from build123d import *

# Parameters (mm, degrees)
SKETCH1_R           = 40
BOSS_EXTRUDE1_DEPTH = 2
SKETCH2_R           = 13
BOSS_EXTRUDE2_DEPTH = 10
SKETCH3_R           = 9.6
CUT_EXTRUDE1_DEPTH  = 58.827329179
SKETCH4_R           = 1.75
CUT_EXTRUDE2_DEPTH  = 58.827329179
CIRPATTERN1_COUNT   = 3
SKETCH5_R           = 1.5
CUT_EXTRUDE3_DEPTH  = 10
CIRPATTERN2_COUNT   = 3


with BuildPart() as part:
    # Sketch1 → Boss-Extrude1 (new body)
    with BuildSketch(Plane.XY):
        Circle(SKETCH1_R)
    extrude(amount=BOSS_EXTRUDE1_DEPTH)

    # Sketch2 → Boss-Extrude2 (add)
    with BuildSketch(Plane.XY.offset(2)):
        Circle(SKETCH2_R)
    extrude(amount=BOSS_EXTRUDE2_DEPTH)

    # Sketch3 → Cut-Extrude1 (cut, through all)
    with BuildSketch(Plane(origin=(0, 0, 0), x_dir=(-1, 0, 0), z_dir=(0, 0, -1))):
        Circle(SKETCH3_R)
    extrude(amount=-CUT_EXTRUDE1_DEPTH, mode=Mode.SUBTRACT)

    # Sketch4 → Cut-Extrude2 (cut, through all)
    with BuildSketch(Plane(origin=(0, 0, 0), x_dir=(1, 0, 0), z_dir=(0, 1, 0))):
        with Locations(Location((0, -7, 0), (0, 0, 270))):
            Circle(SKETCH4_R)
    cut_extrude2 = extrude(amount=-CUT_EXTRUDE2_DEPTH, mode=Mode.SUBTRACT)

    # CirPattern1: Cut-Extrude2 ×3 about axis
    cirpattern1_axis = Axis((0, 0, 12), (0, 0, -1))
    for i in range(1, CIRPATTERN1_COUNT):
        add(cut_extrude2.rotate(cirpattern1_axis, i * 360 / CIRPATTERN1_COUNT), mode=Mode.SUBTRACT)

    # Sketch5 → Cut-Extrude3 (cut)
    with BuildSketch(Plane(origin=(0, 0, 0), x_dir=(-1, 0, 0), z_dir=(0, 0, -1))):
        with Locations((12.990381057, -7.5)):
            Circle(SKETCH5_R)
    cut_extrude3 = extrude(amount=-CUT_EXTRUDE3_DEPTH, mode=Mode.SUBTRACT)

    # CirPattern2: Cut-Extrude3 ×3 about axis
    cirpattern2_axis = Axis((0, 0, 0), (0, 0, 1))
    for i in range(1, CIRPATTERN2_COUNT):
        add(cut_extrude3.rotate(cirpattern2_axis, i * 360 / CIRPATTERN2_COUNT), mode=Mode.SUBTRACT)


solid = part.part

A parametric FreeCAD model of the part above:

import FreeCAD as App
import Part
import Sketcher

V = App.Vector

doc = App.newDocument("Part")
params = doc.addObject("Spreadsheet::Sheet", "Params")
for row, (alias, value) in enumerate([
    ("sketch1_diameter", "80 mm"),
    ("pad1_length", "2 mm"),
    ("sketch2_diameter", "26 mm"),
    ("pad2_length", "10 mm"),
    ("sketch3_diameter", "19.2 mm"),
    ("sketch4_diameter", "3.5 mm"),
    ("sketch5_diameter", "3 mm"),
    ("pocket3_length", "10 mm"),
], start=1):
    params.set(f"A{row}", alias)
    params.set(f"B{row}", "=" + value)
    params.setAlias(f"B{row}", alias)

body = doc.addObject("PartDesign::Body", "Body")

sketch1 = body.newObject("Sketcher::SketchObject", "Sketch")
sketch1.AttachmentSupport = (doc.getObject("XY_Plane"), [""])
sketch1.MapMode = "FlatFace"
sketch1.addGeometry(Part.Circle(V(0, 0, 0), V(0, 0, 1), 40), False)
sketch1.addConstraint([
    Sketcher.Constraint("Coincident", 0, 3, -1, 1),
    Sketcher.Constraint("Diameter", 0, 80.0),
])
sketch1.setExpression("Constraints[1]", "Params.sketch1_diameter")
pad1 = body.newObject("PartDesign::Pad", "Pad")
pad1.Profile = sketch1
pad1.setExpression("Length", "Params.pad1_length")

sketch2 = body.newObject("Sketcher::SketchObject", "Sketch001")
sketch2.AttachmentSupport = (doc.getObject("XY_Plane"), [""])
sketch2.MapMode = "FlatFace"
sketch2.AttachmentOffset = App.Placement(V(0, 0, 2), App.Rotation())
sketch2.addGeometry(Part.Circle(V(0, 0, 0), V(0, 0, 1), 13), False)
sketch2.addConstraint([
    Sketcher.Constraint("Coincident", 0, 3, -1, 1),
    Sketcher.Constraint("Diameter", 0, 26.0),
])
sketch2.setExpression("Constraints[1]", "Params.sketch2_diameter")
pad2 = body.newObject("PartDesign::Pad", "Pad001")
pad2.Profile = sketch2
pad2.setExpression("Length", "Params.pad2_length")

sketch3 = body.newObject("Sketcher::SketchObject", "Sketch002")
sketch3.AttachmentSupport = (doc.getObject("XY_Plane"), [""])
sketch3.MapMode = "FlatFace"
sketch3.addGeometry(Part.Circle(V(0, 0, 0), V(0, 0, 1), 10), False)
sketch3.addConstraint([
    Sketcher.Constraint("Coincident", 0, 3, -1, 1),
    Sketcher.Constraint("Diameter", 0, 19.2),
])
sketch3.setExpression("Constraints[1]", "Params.sketch3_diameter")
pocket1 = body.newObject("PartDesign::Pocket", "Pocket")
pocket1.Profile = sketch3
pocket1.Type = "ThroughAll"
pocket1.Reversed = True

sketch4 = body.newObject("Sketcher::SketchObject", "Sketch003")
sketch4.AttachmentSupport = (doc.getObject("XZ_Plane"), [""])
sketch4.MapMode = "FlatFace"
sketch4.addGeometry(Part.Circle(V(0, 7, 0), V(0, 0, 1), 1.8), False)
sketch4.addConstraint([
    Sketcher.Constraint("PointOnObject", 0, 3, -2),
    Sketcher.Constraint("Diameter", 0, 3.5),
    Sketcher.Constraint("DistanceY", -1, 1, 0, 3, 7.0),
])
sketch4.setExpression("Constraints[1]", "Params.sketch4_diameter")
pocket2 = body.newObject("PartDesign::Pocket", "Pocket001")
pocket2.Profile = sketch4
pocket2.Type = "ThroughAll"
pocket2.Reversed = True
doc.recompute()

polarpattern = body.newObject("PartDesign::PolarPattern", "PolarPattern")
polarpattern.Originals = [pocket2]
polarpattern.Axis = (doc.getObject("Z_Axis"), [""])
polarpattern.Angle = 360
polarpattern.Occurrences = 3
body.Tip = polarpattern

sketch5 = body.newObject("Sketcher::SketchObject", "Sketch004")
sketch5.AttachmentSupport = (doc.getObject("XY_Plane"), [""])
sketch5.MapMode = "FlatFace"
sketch5.addGeometry(Part.Circle(V(-13, -7.5, 0), V(0, 0, 1), 1.5), False)
sketch5.addConstraint([
    Sketcher.Constraint("Diameter", 0, 3.0),
    Sketcher.Constraint("DistanceY", 0, 3, -1, 1, 7.5),
    Sketcher.Constraint("DistanceX", 0, 3, -1, 1, 12.990381),
])
sketch5.setExpression("Constraints[0]", "Params.sketch5_diameter")
pocket3 = body.newObject("PartDesign::Pocket", "Pocket002")
pocket3.Profile = sketch5
pocket3.setExpression("Length", "Params.pocket3_length")
pocket3.Reversed = True
doc.recompute()

polarpattern2 = body.newObject("PartDesign::PolarPattern", "PolarPattern001")
polarpattern2.Originals = [pocket3]
polarpattern2.Axis = (doc.getObject("Z_Axis"), [""])
polarpattern2.Angle = 360
polarpattern2.Occurrences = 3
body.Tip = polarpattern2

doc.recompute()
